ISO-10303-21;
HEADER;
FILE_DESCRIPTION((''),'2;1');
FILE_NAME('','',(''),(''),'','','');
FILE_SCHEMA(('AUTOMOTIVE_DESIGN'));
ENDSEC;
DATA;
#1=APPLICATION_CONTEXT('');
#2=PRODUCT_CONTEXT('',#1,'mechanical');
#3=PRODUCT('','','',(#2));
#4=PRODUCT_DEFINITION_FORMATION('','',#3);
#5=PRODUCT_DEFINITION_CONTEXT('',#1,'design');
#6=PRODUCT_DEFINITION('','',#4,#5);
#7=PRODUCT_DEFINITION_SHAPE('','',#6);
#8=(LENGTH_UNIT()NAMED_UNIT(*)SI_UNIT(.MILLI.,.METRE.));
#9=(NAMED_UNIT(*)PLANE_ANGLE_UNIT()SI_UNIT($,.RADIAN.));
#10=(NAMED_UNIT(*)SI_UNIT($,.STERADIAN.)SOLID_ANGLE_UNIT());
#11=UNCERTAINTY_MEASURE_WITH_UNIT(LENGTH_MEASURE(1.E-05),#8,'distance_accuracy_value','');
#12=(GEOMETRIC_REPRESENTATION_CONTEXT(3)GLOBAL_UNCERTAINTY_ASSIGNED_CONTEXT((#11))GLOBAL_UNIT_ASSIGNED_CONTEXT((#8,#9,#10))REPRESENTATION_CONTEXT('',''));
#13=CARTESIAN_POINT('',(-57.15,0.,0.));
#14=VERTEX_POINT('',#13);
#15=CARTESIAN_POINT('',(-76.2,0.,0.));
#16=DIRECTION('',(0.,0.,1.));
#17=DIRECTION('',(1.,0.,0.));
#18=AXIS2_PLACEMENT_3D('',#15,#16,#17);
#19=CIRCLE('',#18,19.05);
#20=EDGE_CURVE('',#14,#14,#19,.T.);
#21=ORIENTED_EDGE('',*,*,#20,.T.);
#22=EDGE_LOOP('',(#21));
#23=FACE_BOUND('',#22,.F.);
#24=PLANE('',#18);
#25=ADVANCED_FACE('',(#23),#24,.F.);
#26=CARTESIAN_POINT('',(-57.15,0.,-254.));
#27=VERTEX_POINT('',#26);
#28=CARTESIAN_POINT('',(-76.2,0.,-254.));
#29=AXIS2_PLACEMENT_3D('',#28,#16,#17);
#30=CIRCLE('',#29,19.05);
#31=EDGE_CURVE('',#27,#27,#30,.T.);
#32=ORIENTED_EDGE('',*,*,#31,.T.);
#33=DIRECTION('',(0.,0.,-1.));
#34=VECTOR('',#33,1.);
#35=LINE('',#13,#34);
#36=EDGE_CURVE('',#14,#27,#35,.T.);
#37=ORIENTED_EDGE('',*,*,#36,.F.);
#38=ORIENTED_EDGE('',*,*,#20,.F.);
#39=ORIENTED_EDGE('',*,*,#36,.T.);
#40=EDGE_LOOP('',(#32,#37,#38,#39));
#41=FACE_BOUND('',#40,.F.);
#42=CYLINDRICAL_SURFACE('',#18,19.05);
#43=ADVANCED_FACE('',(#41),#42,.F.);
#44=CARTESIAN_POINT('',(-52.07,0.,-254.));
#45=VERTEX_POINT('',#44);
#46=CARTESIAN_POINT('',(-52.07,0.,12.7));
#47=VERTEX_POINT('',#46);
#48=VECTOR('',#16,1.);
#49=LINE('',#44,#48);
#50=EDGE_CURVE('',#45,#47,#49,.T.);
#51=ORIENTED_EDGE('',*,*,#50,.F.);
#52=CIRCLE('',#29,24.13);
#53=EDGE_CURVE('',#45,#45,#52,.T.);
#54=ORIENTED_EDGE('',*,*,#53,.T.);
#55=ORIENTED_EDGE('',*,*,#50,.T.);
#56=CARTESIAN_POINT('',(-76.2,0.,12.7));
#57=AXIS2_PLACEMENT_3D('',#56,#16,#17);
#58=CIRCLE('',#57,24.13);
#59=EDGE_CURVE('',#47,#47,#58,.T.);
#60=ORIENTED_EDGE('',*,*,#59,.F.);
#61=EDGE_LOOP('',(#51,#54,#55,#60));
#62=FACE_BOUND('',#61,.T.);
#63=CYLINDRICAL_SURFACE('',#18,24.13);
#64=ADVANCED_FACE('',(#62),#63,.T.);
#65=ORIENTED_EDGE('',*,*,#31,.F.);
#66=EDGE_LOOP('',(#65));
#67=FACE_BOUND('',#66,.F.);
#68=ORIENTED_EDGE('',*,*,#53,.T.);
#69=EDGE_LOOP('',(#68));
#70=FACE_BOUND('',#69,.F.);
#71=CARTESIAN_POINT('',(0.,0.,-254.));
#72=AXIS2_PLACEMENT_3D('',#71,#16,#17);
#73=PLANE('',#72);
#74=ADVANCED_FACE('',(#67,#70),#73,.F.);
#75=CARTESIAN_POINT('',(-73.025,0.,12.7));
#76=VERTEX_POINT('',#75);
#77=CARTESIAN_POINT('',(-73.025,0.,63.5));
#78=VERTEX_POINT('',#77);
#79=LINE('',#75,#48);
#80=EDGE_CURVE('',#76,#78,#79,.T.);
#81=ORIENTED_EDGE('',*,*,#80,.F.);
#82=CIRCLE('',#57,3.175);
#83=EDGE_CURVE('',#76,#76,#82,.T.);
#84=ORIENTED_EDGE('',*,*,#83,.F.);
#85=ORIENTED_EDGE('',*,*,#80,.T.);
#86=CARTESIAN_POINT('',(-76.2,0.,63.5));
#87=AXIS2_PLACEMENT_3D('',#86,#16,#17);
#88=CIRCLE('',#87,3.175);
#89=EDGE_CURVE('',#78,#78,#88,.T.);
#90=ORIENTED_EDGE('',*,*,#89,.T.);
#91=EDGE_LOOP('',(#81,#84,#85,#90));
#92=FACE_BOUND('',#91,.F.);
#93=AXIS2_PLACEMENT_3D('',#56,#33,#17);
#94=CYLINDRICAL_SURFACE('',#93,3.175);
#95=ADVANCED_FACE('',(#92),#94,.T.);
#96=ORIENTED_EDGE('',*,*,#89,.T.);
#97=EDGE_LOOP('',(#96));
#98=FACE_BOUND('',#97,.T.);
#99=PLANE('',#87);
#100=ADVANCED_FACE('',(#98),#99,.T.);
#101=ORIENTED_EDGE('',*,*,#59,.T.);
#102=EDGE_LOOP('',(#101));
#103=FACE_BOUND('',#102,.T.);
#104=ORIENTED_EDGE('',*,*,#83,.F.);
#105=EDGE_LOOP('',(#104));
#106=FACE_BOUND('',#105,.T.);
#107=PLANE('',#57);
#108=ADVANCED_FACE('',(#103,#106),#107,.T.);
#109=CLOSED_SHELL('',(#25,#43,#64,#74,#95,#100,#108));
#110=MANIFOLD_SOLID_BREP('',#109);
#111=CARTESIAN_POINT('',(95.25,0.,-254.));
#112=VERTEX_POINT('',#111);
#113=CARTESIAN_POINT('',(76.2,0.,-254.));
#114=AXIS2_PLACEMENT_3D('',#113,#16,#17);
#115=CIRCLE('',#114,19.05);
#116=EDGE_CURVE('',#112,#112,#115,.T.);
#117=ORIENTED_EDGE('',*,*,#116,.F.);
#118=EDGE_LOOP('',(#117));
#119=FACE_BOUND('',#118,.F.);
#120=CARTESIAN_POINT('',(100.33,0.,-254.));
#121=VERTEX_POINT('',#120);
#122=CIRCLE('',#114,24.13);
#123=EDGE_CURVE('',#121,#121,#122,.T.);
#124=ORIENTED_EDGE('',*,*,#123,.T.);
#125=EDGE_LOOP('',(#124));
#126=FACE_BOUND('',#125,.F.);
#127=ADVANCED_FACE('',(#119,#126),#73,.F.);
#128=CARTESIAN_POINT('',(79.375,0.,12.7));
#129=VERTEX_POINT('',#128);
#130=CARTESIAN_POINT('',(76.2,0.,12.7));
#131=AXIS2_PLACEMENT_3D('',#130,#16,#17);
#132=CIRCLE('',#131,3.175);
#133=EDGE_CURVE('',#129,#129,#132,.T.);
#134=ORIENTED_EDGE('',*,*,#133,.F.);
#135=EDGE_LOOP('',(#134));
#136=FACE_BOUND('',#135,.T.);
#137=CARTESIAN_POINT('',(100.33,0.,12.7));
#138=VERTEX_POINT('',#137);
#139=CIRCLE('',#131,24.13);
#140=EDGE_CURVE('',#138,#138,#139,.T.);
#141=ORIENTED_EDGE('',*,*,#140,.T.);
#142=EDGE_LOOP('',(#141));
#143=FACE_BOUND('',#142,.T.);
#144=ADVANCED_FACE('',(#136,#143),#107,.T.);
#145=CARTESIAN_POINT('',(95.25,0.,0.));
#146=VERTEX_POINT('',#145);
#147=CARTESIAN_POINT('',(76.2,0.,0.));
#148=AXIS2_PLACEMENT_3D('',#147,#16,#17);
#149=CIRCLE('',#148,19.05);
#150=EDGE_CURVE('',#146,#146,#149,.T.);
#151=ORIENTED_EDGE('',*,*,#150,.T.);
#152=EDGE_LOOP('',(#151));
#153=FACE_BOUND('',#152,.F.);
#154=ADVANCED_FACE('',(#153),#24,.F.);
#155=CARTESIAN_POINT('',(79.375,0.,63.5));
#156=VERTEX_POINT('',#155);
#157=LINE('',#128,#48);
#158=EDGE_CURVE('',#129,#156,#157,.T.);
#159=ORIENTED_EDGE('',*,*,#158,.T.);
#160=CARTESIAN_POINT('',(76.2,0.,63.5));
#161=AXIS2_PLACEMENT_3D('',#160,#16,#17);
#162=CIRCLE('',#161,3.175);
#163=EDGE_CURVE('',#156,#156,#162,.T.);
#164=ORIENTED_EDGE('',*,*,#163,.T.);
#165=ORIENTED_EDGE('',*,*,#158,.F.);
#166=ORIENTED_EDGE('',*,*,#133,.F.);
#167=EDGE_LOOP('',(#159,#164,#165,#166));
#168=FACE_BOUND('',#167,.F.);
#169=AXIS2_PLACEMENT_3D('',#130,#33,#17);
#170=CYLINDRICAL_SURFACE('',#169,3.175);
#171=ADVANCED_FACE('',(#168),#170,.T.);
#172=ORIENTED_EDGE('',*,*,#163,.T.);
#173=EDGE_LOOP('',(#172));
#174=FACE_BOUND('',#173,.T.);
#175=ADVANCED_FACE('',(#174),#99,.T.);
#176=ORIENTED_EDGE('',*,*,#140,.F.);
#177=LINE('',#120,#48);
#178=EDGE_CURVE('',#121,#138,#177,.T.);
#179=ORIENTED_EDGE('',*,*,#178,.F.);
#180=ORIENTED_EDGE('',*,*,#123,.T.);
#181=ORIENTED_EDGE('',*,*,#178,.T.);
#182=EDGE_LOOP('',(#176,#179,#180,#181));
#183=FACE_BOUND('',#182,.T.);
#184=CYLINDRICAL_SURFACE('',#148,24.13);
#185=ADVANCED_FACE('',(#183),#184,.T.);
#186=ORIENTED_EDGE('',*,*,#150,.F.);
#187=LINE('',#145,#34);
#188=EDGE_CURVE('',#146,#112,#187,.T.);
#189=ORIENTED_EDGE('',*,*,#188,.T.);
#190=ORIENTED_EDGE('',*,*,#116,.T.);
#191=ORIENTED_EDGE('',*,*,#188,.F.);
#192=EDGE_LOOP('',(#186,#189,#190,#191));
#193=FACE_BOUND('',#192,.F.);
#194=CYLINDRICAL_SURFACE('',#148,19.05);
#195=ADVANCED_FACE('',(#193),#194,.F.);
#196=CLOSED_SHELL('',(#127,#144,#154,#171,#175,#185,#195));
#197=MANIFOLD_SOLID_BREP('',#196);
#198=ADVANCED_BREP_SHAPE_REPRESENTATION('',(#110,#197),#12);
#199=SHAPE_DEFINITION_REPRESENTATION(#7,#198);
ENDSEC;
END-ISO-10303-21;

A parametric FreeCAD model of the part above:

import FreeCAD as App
import Part
import Sketcher

V = App.Vector
Q = App.Units.Quantity

doc = App.newDocument("Part")
body = doc.addObject("PartDesign::Body", "Body")
body.AllowCompound = True

sketch1 = body.newObject("Sketcher::SketchObject", "Sketch")
sketch1.AttachmentSupport = (doc.getObject("XY_Plane"), [""])
sketch1.MapMode = "FlatFace"
sketch1.addGeometry([
    Part.Circle(V(-76, 0, 0), V(0, 0, 1), 24),
    Part.Circle(V(-76, 0, 0), V(0, 0, 1), 19),
    Part.Circle(V(76, 0, 0), V(0, 0, 1), 24),
    Part.Circle(V(76, 0, 0), V(0, 0, 1), 19),
], False)
sketch1.addConstraint([
    Sketcher.Constraint("Coincident", 1, 3, 0, 3),
    Sketcher.Constraint("Coincident", 3, 3, 2, 3),
    Sketcher.Constraint("Equal", 0, 2),
    Sketcher.Constraint("Equal", 1, 3),
    Sketcher.Constraint("Symmetric", 0, 3, 2, 3, -1, 1),
    Sketcher.Constraint("PointOnObject", 0, 3, -1),
    Sketcher.Constraint("Diameter", 0, Q("1.9 in")),
    Sketcher.Constraint("Diameter", 1, Q("1.5 in")),
    Sketcher.Constraint("DistanceX", 0, 3, -1, 1, Q("3 in")),
])
pad1 = body.newObject("PartDesign::Pad", "Pad")
pad1.Profile = sketch1
pad1.Length = Q("10 in")
pad1.Reversed = True

sketch2 = body.newObject("Sketcher::SketchObject", "Sketch001")
sketch2.AttachmentSupport = (doc.getObject("XY_Plane"), [""])
sketch2.MapMode = "FlatFace"
sketch2.addGeometry([
    Part.Circle(V(-76, 0, 0), V(0, 0, 1), 24),
    Part.Circle(V(76, 0, 0), V(0, 0, 1), 24),
], False)
sketch2.addConstraint([
    Sketcher.Constraint("Equal", 0, 1),
    Sketcher.Constraint("Symmetric", 0, 3, 1, 3, -1, 1),
    Sketcher.Constraint("PointOnObject", 0, 3, -1),
    Sketcher.Constraint("Diameter", 0, Q("1.9 in")),
    Sketcher.Constraint("DistanceX", 0, 3, -1, 1, Q("3 in")),
])
pad2 = body.newObject("PartDesign::Pad", "Pad001")
pad2.Profile = sketch2
pad2.Length = Q("0.5 in")

sketch3 = body.newObject("Sketcher::SketchObject", "Sketch002")
sketch3.AttachmentSupport = (doc.getObject("XY_Plane"), [""])
sketch3.MapMode = "FlatFace"
sketch3.AttachmentOffset = App.Placement(V(0, 0, 0.5 * 25.4), App.Rotation())
sketch3.addGeometry([
    Part.Circle(V(-76.2, 0, 0), V(0, 0, 1), 3.2),
    Part.Circle(V(76.2, 0, 0), V(0, 0, 1), 3.2),
], False)
sketch3.addConstraint([
    Sketcher.Constraint("Equal", 0, 1),
    Sketcher.Constraint("Symmetric", 0, 3, 1, 3, -1, 1),
    Sketcher.Constraint("PointOnObject", 0, 3, -1),
    Sketcher.Constraint("Diameter", 0, Q("0.25 in")),
    Sketcher.Constraint("DistanceX", 0, 3, -1, 1, Q("3 in")),
])
pad3 = body.newObject("PartDesign::Pad", "Pad002")
pad3.Profile = sketch3
pad3.Length = Q("2 in")

doc.recompute()
